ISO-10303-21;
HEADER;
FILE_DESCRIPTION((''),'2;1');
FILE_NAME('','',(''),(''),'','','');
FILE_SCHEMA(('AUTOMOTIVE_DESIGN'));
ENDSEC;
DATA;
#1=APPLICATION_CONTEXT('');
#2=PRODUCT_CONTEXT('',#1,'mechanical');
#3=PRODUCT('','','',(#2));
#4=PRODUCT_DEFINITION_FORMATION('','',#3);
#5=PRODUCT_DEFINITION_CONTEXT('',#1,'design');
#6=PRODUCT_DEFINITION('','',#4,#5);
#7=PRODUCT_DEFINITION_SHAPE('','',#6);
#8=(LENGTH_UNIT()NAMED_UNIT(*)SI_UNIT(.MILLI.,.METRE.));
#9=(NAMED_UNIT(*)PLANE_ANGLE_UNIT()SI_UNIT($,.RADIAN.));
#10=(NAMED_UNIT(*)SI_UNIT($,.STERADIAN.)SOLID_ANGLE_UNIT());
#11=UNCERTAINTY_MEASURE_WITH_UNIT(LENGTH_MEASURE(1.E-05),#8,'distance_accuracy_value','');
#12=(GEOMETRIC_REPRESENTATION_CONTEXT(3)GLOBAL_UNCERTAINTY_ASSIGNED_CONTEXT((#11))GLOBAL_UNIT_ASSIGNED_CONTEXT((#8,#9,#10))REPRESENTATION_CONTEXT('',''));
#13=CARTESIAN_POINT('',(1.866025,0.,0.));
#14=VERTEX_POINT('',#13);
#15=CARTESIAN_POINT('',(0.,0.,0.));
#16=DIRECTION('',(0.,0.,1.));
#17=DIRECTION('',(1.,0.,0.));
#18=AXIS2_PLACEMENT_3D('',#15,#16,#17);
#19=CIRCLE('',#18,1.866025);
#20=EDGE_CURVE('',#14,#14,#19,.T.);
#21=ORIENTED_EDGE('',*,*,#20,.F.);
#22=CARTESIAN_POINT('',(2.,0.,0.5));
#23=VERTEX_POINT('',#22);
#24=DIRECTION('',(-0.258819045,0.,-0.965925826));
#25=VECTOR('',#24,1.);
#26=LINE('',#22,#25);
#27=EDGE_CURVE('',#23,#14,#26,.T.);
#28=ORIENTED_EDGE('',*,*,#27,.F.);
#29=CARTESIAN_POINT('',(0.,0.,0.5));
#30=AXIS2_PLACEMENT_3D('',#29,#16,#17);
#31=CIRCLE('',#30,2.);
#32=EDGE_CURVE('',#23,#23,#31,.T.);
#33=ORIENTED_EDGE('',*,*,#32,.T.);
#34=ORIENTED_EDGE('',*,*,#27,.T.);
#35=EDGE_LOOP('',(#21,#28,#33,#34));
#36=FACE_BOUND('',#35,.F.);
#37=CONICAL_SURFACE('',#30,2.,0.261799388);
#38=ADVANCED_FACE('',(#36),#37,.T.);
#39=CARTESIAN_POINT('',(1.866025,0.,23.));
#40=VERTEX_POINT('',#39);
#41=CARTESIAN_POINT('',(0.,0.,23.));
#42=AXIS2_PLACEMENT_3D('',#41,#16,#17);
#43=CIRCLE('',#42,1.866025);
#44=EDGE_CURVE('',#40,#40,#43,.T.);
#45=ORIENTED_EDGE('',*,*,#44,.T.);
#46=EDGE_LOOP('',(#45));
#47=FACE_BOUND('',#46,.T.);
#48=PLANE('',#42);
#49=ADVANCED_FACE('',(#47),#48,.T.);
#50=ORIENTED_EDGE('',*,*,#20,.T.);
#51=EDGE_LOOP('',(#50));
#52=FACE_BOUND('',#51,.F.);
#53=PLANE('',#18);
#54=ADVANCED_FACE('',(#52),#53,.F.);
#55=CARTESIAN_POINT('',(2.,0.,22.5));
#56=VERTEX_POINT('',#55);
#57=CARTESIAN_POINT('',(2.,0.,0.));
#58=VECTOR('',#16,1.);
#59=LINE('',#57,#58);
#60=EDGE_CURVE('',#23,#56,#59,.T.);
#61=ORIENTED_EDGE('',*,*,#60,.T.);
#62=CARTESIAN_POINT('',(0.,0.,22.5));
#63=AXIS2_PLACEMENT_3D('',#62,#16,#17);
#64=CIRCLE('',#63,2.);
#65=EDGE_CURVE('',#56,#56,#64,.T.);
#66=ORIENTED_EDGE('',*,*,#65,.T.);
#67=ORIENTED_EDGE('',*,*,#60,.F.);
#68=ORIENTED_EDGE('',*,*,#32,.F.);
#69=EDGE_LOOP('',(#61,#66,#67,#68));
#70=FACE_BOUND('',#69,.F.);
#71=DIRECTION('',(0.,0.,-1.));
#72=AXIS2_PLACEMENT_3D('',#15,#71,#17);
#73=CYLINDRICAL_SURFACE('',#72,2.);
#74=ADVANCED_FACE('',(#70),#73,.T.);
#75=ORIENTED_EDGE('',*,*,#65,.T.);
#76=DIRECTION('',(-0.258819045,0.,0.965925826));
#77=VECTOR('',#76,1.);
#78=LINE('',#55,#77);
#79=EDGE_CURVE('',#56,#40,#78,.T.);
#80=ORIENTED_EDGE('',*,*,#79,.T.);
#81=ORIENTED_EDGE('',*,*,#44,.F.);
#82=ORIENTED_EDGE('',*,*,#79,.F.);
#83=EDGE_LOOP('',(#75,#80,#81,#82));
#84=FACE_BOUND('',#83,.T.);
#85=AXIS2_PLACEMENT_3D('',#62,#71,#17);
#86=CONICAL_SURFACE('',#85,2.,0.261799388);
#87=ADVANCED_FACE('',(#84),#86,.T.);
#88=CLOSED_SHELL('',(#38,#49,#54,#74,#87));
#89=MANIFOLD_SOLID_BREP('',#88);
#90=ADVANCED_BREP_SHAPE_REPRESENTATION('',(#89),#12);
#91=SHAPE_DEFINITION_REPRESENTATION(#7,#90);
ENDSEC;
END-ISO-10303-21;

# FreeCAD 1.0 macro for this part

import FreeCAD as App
import Part
import Sketcher

V = App.Vector


def edges_at(feature, points):
    """Names of the edges that pass closest to the given points."""
    edges = feature.Shape.Edges
    near = lambda p: min(range(len(edges)), key=lambda i: edges[i].distToShape(Part.Vertex(*p))[0])
    return sorted({f"Edge{near(p) + 1}" for p in points})

doc = App.newDocument("Part")
body = doc.addObject("PartDesign::Body", "Body")

sketch1 = doc.addObject("Sketcher::SketchObject", "Sketch")
body.addObject(sketch1)
sketch1.AttachmentSupport = (doc.XY_Plane, [""])
sketch1.MapMode = "FlatFace"
sketch1.addGeometry(Part.Circle(V(0, 0, 0), V(0, 0, 1), 2), False)
sketch1.addConstraint([
    Sketcher.Constraint("Coincident", 0, 3, -1, 1),
    Sketcher.Constraint("Diameter", 0, 4.0),
])
pad1 = doc.addObject("PartDesign::Pad", "Pad")
body.addObject(pad1)
pad1.Profile = sketch1
pad1.Length = 23
doc.recompute()

chamfer = doc.addObject("PartDesign::Chamfer", "Chamfer")
body.addObject(chamfer)
chamfer.Base = (pad1, edges_at(pad1, [(-2, 0, 0), (-2, 0, 23)]))
chamfer.ChamferType = "Distance and Angle"
chamfer.Size = 0.5
chamfer.Angle = 15

doc.recompute()
